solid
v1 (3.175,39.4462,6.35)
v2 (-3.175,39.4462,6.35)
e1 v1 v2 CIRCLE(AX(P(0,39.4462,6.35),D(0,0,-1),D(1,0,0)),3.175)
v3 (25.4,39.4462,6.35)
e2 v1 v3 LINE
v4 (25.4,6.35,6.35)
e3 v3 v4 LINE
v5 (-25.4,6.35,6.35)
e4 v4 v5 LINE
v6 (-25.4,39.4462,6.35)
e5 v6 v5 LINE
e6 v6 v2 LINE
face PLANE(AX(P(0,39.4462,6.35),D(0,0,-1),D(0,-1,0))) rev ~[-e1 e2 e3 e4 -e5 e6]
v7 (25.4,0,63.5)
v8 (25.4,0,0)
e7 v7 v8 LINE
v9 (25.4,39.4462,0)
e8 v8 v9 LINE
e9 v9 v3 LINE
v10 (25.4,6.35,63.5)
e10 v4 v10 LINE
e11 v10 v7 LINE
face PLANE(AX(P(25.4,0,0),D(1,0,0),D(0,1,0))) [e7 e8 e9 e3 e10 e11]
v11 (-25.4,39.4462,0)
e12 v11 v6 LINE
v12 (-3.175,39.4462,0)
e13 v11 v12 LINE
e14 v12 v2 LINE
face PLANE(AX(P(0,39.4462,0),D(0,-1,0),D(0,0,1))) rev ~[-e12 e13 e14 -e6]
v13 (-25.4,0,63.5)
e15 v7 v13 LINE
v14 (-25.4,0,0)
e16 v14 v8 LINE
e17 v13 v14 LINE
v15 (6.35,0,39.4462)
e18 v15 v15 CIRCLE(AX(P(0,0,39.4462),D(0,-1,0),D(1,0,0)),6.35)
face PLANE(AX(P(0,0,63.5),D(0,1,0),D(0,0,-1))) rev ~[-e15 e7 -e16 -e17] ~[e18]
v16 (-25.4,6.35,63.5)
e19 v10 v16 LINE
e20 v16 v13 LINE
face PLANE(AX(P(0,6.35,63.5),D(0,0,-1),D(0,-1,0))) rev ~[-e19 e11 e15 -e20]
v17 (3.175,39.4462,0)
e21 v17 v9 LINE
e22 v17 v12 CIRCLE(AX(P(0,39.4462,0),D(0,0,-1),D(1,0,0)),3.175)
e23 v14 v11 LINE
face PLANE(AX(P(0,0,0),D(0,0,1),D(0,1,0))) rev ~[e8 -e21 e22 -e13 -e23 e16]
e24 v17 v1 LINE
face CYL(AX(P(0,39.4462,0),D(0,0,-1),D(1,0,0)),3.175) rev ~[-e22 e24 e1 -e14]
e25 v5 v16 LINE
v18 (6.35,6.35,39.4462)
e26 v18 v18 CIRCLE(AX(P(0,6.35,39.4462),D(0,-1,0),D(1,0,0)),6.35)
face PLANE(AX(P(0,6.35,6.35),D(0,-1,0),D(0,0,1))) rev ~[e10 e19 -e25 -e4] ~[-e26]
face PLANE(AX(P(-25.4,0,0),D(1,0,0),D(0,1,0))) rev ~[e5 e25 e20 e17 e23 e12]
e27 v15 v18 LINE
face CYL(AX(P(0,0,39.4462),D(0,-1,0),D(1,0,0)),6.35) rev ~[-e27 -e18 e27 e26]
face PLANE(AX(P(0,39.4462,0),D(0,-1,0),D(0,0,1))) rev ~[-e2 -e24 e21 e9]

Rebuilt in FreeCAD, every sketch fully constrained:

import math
import FreeCAD as App
import Part
import Sketcher
from FreeCAD import Vector
Q = App.Units.Quantity


def add_polygon(sketch, points):
    """Adds a closed chain of lines whose ends are joined by coincident constraints."""
    first, n = sketch.GeometryCount, len(points)
    for a, b in zip(points, points[1:] + points[:1]):
        sketch.addGeometry(Part.LineSegment(App.Vector(*a, 0), App.Vector(*b, 0)), False)
    for i in range(n):
        sketch.addConstraint(Sketcher.Constraint("Coincident", first + i, 2, first + (i + 1) % n, 1))

doc = App.newDocument("Part")
body = doc.addObject("PartDesign::Body", "Body")

# Sketch on YZ plane
sketch1 = doc.addObject("Sketcher::SketchObject", "Sketch")
body.addObject(sketch1)
sketch1.AttachmentSupport = (doc.YZ_Plane, [""])
sketch1.MapMode = "FlatFace"
add_polygon(sketch1, [(0, 63.5), (0, 0), (39.4462, 0), (39.4462, 6.35), (6.35, 6.35), (6.35, 63.5)])  # lines 0-5
sketch1.addConstraint([
    Sketcher.Constraint("Vertical", 0),
    Sketcher.Constraint("Horizontal", 1),
    Sketcher.Constraint("Vertical", 2),
    Sketcher.Constraint("Horizontal", 3),
    Sketcher.Constraint("Vertical", 4),
    Sketcher.Constraint("Horizontal", 5),
    Sketcher.Constraint("Coincident", 0, 2, -1, 1),
    Sketcher.Constraint("Equal", 5, 2),
    Sketcher.Constraint("DistanceY", 0, 2, 0, 1, Q("2.5 in")),
    Sketcher.Constraint("DistanceX", 5, 2, 5, 1, Q("0.25 in")),
    Sketcher.Constraint("DistanceX", 3, 2, 3, 1, Q("1.303 in")),
])
pad1 = doc.addObject("PartDesign::Pad", "Pad")
body.addObject(pad1)
pad1.Profile = sketch1
pad1.Length = Q("2 in")
pad1.Midplane = True

# Sketch on XY plane
sketch2 = doc.addObject("Sketcher::SketchObject", "Sketch001")
body.addObject(sketch2)
sketch2.AttachmentSupport = (doc.XY_Plane, [""])
sketch2.MapMode = "FlatFace"
sketch2.addGeometry([
    Part.ArcOfCircle(Part.Circle(Vector(0, 39.4462, 0), Vector(0, 0, 1), 3.175), math.radians(180), math.radians(360)),
    Part.LineSegment(Vector(-3.175, 39.4462, 0), Vector(3.175, 39.4462, 0)),
], False)
sketch2.addConstraint([
    Sketcher.Constraint("Coincident", 0, 1, 1, 1),
    Sketcher.Constraint("Coincident", 1, 2, 0, 2),
    Sketcher.Constraint("Horizontal", 1),
    Sketcher.Constraint("PointOnObject", 0, 3, -2),
    Sketcher.Constraint("Radius", 0, Q("0.125 in")),
    Sketcher.Constraint("DistanceY", -1, 1, 0, 3, Q("1.553 in")),
    Sketcher.Constraint("DistanceY", -1, 1, 0, 1, Q("1.553 in")),
])
pocket1 = doc.addObject("PartDesign::Pocket", "Pocket")
body.addObject(pocket1)
pocket1.Profile = sketch2
pocket1.Type = "ThroughAll"
pocket1.Reversed = True

# Sketch on XZ plane
sketch3 = doc.addObject("Sketcher::SketchObject", "Sketch002")
body.addObject(sketch3)
sketch3.AttachmentSupport = (doc.XZ_Plane, [""])
sketch3.MapMode = "FlatFace"
sketch3.addGeometry(Part.Circle(Vector(0, 39.4462, 0), Vector(0, 0, 1), 6.35), False)
sketch3.addConstraint([
    Sketcher.Constraint("PointOnObject", 0, 3, -2),
    Sketcher.Constraint("Diameter", 0, Q("0.5 in")),
    Sketcher.Constraint("DistanceY", -1, 1, 0, 3, Q("1.553 in")),
])
pocket2 = doc.addObject("PartDesign::Pocket", "Pocket001")
body.addObject(pocket2)
pocket2.Profile = sketch3
pocket2.Type = "ThroughAll"

doc.recompute()
